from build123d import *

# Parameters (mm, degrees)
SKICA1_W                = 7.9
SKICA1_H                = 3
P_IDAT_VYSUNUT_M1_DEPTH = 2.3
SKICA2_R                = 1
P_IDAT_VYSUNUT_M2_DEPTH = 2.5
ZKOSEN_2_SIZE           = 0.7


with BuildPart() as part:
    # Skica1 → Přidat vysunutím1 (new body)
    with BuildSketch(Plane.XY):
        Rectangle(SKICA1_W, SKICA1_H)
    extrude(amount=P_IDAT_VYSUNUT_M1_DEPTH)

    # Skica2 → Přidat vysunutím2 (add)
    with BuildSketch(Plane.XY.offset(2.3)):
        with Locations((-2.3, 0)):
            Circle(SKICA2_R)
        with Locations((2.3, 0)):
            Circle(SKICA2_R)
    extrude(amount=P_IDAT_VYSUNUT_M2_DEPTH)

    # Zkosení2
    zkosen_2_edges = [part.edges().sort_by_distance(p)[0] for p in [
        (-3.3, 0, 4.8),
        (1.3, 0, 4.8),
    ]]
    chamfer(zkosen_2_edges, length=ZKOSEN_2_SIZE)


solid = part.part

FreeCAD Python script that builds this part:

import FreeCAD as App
import Part
import Sketcher

V = App.Vector
Q = App.Units.Quantity


def edges_at(feature, points):
    """Names of the edges that pass closest to the given points."""
    edges = feature.Shape.Edges
    near = lambda p: min(range(len(edges)), key=lambda i: edges[i].distToShape(Part.Vertex(*p))[0])
    return sorted({f"Edge{near(p) + 1}" for p in points})

doc = App.newDocument("Part")
body = doc.addObject("PartDesign::Body", "Body")

# Sketch on XY plane
sketch1 = body.newObject("Sketcher::SketchObject", "Sketch")
sketch1.AttachmentSupport = (doc.getObject("XY_Plane"), [""])
sketch1.MapMode = "FlatFace"
sketch1.addGeometry(Part.LineSegment(V(-4, 1.5, 0), V(-4, -1.5, 0)), False)
sketch1.addGeometry(Part.LineSegment(V(-4, -1.5, 0), V(4, -1.5, 0)), False)
sketch1.addGeometry(Part.LineSegment(V(4, -1.5, 0), V(4, 1.5, 0)), False)
sketch1.addGeometry(Part.LineSegment(V(4, 1.5, 0), V(-4, 1.5, 0)), False)
sketch1.addConstraint(Sketcher.Constraint("Coincident", 0, 2, 1, 1))
sketch1.addConstraint(Sketcher.Constraint("Coincident", 1, 2, 2, 1))
sketch1.addConstraint(Sketcher.Constraint("Coincident", 2, 2, 3, 1))
sketch1.addConstraint(Sketcher.Constraint("Coincident", 3, 2, 0, 1))
sketch1.addConstraint(Sketcher.Constraint("Vertical", 0))
sketch1.addConstraint(Sketcher.Constraint("Horizontal", 1))
sketch1.addConstraint(Sketcher.Constraint("Vertical", 2))
sketch1.addConstraint(Sketcher.Constraint("Horizontal", 3))
sketch1.addConstraint(Sketcher.Constraint("Symmetric", 0, 2, 2, 2, -1, 1))
sketch1.addConstraint(Sketcher.Constraint("DistanceY", 0, 2, 0, 1, Q("3 mm")))
sketch1.addConstraint(Sketcher.Constraint("DistanceX", 1, 1, 1, 2, Q("7.9 mm")))
pad1 = body.newObject("PartDesign::Pad", "Pad")
pad1.Profile = sketch1
pad1.Length = 2.3

# Sketch on XY plane
sketch2 = body.newObject("Sketcher::SketchObject", "Sketch001")
sketch2.AttachmentSupport = (doc.getObject("XY_Plane"), [""])
sketch2.MapMode = "FlatFace"
sketch2.AttachmentOffset = App.Placement(V(0, 0, 2.3), App.Rotation())
sketch2.addGeometry(Part.Circle(V(-2.3, 0, 0), V(0, 0, 1), 1), False)
sketch2.addGeometry(Part.Circle(V(2.3, 0, 0), V(0, 0, 1), 1), False)
sketch2.addConstraint(Sketcher.Constraint("Equal", 0, 1))
sketch2.addConstraint(Sketcher.Constraint("Symmetric", 0, 3, 1, 3, -1, 1))
sketch2.addConstraint(Sketcher.Constraint("PointOnObject", 0, 3, -1))
sketch2.addConstraint(Sketcher.Constraint("Diameter", 0, Q("2 mm")))
sketch2.addConstraint(Sketcher.Constraint("DistanceX", 0, 3, -1, 1, Q("2.3 mm")))
pad2 = body.newObject("PartDesign::Pad", "Pad001")
pad2.Profile = sketch2
pad2.Length = 2.5
doc.recompute()

chamfer = body.newObject("PartDesign::Chamfer", "Chamfer")
chamfer.Base = (pad2, edges_at(pad2, [(-3.3, 0, 4.8), (1.3, 0, 4.8)]))
chamfer.Size = 0.7

doc.recompute()
